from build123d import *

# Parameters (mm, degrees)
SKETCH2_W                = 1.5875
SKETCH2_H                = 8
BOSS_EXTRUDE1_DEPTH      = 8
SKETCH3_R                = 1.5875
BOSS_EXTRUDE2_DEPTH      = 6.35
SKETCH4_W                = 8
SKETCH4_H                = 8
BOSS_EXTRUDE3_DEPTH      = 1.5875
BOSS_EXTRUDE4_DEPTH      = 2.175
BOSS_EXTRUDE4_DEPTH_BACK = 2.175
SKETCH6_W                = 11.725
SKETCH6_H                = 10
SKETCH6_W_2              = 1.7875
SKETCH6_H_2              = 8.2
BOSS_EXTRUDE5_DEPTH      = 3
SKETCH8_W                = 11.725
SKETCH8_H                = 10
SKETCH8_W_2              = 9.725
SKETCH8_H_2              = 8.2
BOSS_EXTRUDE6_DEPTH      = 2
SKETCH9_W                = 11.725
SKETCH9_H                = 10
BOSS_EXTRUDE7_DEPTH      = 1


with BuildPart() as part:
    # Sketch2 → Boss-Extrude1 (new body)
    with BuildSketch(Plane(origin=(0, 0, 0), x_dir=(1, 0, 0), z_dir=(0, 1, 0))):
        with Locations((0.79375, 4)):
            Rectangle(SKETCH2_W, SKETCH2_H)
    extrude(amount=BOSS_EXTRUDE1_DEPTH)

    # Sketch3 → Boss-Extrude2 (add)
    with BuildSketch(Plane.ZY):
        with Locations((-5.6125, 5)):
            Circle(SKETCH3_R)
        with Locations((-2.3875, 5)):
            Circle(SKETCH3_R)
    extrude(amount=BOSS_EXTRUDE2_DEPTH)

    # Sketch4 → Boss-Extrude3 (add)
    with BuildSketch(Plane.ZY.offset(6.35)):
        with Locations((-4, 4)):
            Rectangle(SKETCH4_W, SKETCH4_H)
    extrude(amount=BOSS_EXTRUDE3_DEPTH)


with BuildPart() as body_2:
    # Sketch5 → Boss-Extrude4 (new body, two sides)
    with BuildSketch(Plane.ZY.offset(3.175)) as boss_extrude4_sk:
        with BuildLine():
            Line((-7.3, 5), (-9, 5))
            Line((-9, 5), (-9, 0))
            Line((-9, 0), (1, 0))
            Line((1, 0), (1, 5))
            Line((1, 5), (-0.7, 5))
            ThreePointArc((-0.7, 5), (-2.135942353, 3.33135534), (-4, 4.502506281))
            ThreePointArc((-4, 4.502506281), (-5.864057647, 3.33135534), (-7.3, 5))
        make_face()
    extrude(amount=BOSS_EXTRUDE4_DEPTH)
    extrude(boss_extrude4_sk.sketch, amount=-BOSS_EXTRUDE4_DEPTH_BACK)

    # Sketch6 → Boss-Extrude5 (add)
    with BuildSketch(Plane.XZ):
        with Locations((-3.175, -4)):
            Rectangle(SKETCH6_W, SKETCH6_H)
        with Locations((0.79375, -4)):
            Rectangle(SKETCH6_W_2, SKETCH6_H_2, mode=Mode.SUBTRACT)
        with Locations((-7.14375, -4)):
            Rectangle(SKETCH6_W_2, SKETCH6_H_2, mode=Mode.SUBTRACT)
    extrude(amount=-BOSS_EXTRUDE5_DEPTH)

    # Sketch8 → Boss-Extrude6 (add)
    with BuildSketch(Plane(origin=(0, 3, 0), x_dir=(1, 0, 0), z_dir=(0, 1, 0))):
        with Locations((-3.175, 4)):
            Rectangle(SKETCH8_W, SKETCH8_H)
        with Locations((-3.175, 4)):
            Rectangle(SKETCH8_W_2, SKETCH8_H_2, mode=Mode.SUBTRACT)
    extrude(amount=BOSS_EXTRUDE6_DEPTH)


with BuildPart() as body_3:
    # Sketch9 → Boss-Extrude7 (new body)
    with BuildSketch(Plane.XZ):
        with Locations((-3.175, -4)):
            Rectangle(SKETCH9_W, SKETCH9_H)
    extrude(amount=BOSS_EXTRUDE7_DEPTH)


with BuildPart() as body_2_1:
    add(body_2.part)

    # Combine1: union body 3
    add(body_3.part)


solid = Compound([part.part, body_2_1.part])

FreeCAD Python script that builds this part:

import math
import FreeCAD as App
import Part
import Sketcher
from FreeCAD import Vector
Q = App.Units.Quantity

doc = App.newDocument("Part")
body = doc.addObject("PartDesign::Body", "Body")

# Sketch on XZ plane
sketch1 = doc.addObject("Sketcher::SketchObject", "Sketch")
body.addObject(sketch1)
sketch1.AttachmentSupport = (doc.XZ_Plane, [""])
sketch1.MapMode = "FlatFace"
sketch1.addGeometry([
    Part.LineSegment(Vector(0, -8, 0), Vector(0, 0, 0)),
    Part.LineSegment(Vector(0, 0, 0), Vector(1.6, 0, 0)),
    Part.LineSegment(Vector(1.6, 0, 0), Vector(1.6, -8, 0)),
    Part.LineSegment(Vector(1.6, -8, 0), Vector(0, -8, 0)),
], False)
sketch1.addConstraint([
    Sketcher.Constraint("Coincident", 0, 2, 1, 1),
    Sketcher.Constraint("Coincident", 1, 2, 2, 1),
    Sketcher.Constraint("Coincident", 2, 2, 3, 1),
    Sketcher.Constraint("Coincident", 3, 2, 0, 1),
    Sketcher.Constraint("Vertical", 0),
    Sketcher.Constraint("Horizontal", 1),
    Sketcher.Constraint("Vertical", 2),
    Sketcher.Constraint("Horizontal", 3),
    Sketcher.Constraint("Coincident", 0, 2, -1, 1),
    Sketcher.Constraint("DistanceY", 0, 1, 0, 2, Q("8 mm")),
    Sketcher.Constraint("DistanceX", 1, 1, 1, 2, Q("1.5875 mm")),
])
pad1 = doc.addObject("PartDesign::Pad", "Pad")
body.addObject(pad1)
pad1.Profile = sketch1
pad1.Length = 8
pad1.Reversed = True

# Sketch on YZ plane
sketch2 = doc.addObject("Sketcher::SketchObject", "Sketch001")
body.addObject(sketch2)
sketch2.AttachmentSupport = (doc.YZ_Plane, [""])
sketch2.MapMode = "FlatFace"
sketch2.addGeometry([
    Part.Circle(Vector(5, -5.6, 0), Vector(0, 0, 1), 1.6),
    Part.Circle(Vector(5, -2.4, 0), Vector(0, 0, 1), 1.6),
], False)
sketch2.addConstraint([
    Sketcher.Constraint("Equal", 0, 1),
    Sketcher.Constraint("Vertical", 0, 3, 1, 3),
    Sketcher.Constraint("Diameter", 0, Q("3.175 mm")),
    Sketcher.Constraint("DistanceX", -1, 1, 0, 3, Q("5 mm")),
    Sketcher.Constraint("DistanceY", 0, 3, 1, 3, Q("3.225 mm")),
    Sketcher.Constraint("DistanceY", 0, 3, -1, 1, Q("5.6125 mm")),
])
pad2 = doc.addObject("PartDesign::Pad", "Pad001")
body.addObject(pad2)
pad2.Profile = sketch2
pad2.Length = 6.35
pad2.Reversed = True

# Sketch on YZ plane
sketch3 = doc.addObject("Sketcher::SketchObject", "Sketch002")
body.addObject(sketch3)
sketch3.AttachmentSupport = (doc.YZ_Plane, [""])
sketch3.MapMode = "FlatFace"
sketch3.AttachmentOffset = App.Placement(Vector(0, 0, -6.35), App.Rotation())
sketch3.addGeometry([
    Part.LineSegment(Vector(8, -8, 0), Vector(0, -8, 0)),
    Part.LineSegment(Vector(0, -8, 0), Vector(0, 0, 0)),
    Part.LineSegment(Vector(0, 0, 0), Vector(8, 0, 0)),
    Part.LineSegment(Vector(8, 0, 0), Vector(8, -8, 0)),
], False)
sketch3.addConstraint([
    Sketcher.Constraint("Coincident", 0, 2, 1, 1),
    Sketcher.Constraint("Coincident", 1, 2, 2, 1),
    Sketcher.Constraint("Coincident", 2, 2, 3, 1),
    Sketcher.Constraint("Coincident", 3, 2, 0, 1),
    Sketcher.Constraint("Horizontal", 0),
    Sketcher.Constraint("Vertical", 1),
    Sketcher.Constraint("Horizontal", 2),
    Sketcher.Constraint("Vertical", 3),
    Sketcher.Constraint("Coincident", 1, 2, -1, 1),
    Sketcher.Constraint("Equal", 2, 1),
    Sketcher.Constraint("DistanceX", 0, 2, 0, 1, Q("8 mm")),
])
pad3 = doc.addObject("PartDesign::Pad", "Pad002")
body.addObject(pad3)
pad3.Profile = sketch3
pad3.Length = 1.5875
pad3.Reversed = True
body2 = doc.addObject("PartDesign::Body", "Body001")

# Sketch on YZ plane
sketch4 = doc.addObject("Sketcher::SketchObject", "Sketch003")
body2.addObject(sketch4)
sketch4.AttachmentSupport = (doc.getObject("YZ_Plane001"), [""])
sketch4.MapMode = "FlatFace"
sketch4.AttachmentOffset = App.Placement(Vector(0, 0, -3.175), App.Rotation())
sketch4.addGeometry([
    Part.LineSegment(Vector(5, -7.3, 0), Vector(5, -9, 0)),  # 0
    Part.LineSegment(Vector(5, -9, 0), Vector(0, -9, 0)),  # 1
    Part.LineSegment(Vector(0, -9, 0), Vector(0, 1, 0)),  # 2
    Part.LineSegment(Vector(0, 1, 0), Vector(5, 1, 0)),  # 3
    Part.LineSegment(Vector(5, 1, 0), Vector(5, -0.7, 0)),  # 4
    Part.ArcOfCircle(Part.Circle(Vector(5, -2.4, 0), Vector(0, 0, 1), 1.7), math.radians(90), math.radians(253)),  # 5
    Part.ArcOfCircle(Part.Circle(Vector(5, -5.6, 0), Vector(0, 0, 1), 1.7), math.radians(107), math.radians(270)),  # 6
], False)
sketch4.addConstraint([
    Sketcher.Constraint("Coincident", 0, 2, 1, 1),
    Sketcher.Constraint("Coincident", 1, 2, 2, 1),
    Sketcher.Constraint("Coincident", 2, 2, 3, 1),
    Sketcher.Constraint("Coincident", 3, 2, 4, 1),
    Sketcher.Constraint("Coincident", 4, 2, 5, 1),
    Sketcher.Constraint("Coincident", 5, 2, 6, 1),
    Sketcher.Constraint("Coincident", 6, 2, 0, 1),
    Sketcher.Constraint("Vertical", 0),
    Sketcher.Constraint("Horizontal", 1),
    Sketcher.Constraint("Vertical", 2),
    Sketcher.Constraint("Horizontal", 3),
    Sketcher.Constraint("Vertical", 4),
    Sketcher.Constraint("Equal", 5, 6),
    Sketcher.Constraint("PointOnObject", 1, 2, -2),
    Sketcher.Constraint("Vertical", 5, 3, 6, 3),
    Sketcher.Constraint("Vertical", 6, 3, 0, 2),
    Sketcher.Constraint("Vertical", 0, 2, 3, 2),
    Sketcher.Constraint("Equal", 0, 4),
    Sketcher.Constraint("DistanceX", 1, 2, 1, 1, Q("5 mm")),
    Sketcher.Constraint("DistanceY", 2, 1, 2, 2, Q("10 mm")),
    Sketcher.Constraint("DistanceY", 0, 2, 0, 1, Q("1.7 mm")),
    Sketcher.Constraint("DistanceY", 0, 2, -1, 1, Q("9 mm")),
    Sketcher.Constraint("Radius", 5, Q("1.6875 mm")),
])
pad4 = doc.addObject("PartDesign::Pad", "Pad003")
body2.addObject(pad4)
pad4.Profile = sketch4
pad4.Type = "TwoLengths"
pad4.Length = 2.175
pad4.Length2 = 2.175
pad4.Reversed = True

# Sketch on XZ plane
sketch5 = doc.addObject("Sketcher::SketchObject", "Sketch004")
body2.addObject(sketch5)
sketch5.AttachmentSupport = (doc.getObject("XZ_Plane001"), [""])
sketch5.MapMode = "FlatFace"
sketch5.addGeometry([
    Part.LineSegment(Vector(-9, 1, 0), Vector(-9, -9, 0)),  # 0
    Part.LineSegment(Vector(-9, -9, 0), Vector(2.7, -9, 0)),  # 1
    Part.LineSegment(Vector(2.7, -9, 0), Vector(2.7, 1, 0)),  # 2
    Part.LineSegment(Vector(2.7, 1, 0), Vector(-9, 1, 0)),  # 3
    Part.LineSegment(Vector(-6.2, -8.1, 0), Vector(-8, -8.1, 0)),  # 4
    Part.LineSegment(Vector(-8, -8.1, 0), Vector(-8, 0.1, 0)),  # 5
    Part.LineSegment(Vector(-8, 0.1, 0), Vector(-6.2, 0.1, 0)),  # 6
    Part.LineSegment(Vector(-6.2, 0.1, 0), Vector(-6.2, -8.1, 0)),  # 7
    Part.LineSegment(Vector(1.7, -8.1, 0), Vector(-0.1, -8.1, 0)),  # 8
    Part.LineSegment(Vector(-0.1, -8.1, 0), Vector(-0.1, 0.1, 0)),  # 9
    Part.LineSegment(Vector(-0.1, 0.1, 0), Vector(1.7, 0.1, 0)),  # 10
    Part.LineSegment(Vector(1.7, 0.1, 0), Vector(1.7, -8.1, 0)),  # 11
], False)
sketch5.addConstraint([
    Sketcher.Constraint("Coincident", 0, 2, 1, 1),
    Sketcher.Constraint("Coincident", 1, 2, 2, 1),
    Sketcher.Constraint("Coincident", 2, 2, 3, 1),
    Sketcher.Constraint("Coincident", 3, 2, 0, 1),
    Sketcher.Constraint("Coincident", 4, 2, 5, 1),
    Sketcher.Constraint("Coincident", 5, 2, 6, 1),
    Sketcher.Constraint("Coincident", 6, 2, 7, 1),
    Sketcher.Constraint("Coincident", 7, 2, 4, 1),
    Sketcher.Constraint("Coincident", 8, 2, 9, 1),
    Sketcher.Constraint("Coincident", 9, 2, 10, 1),
    Sketcher.Constraint("Coincident", 10, 2, 11, 1),
    Sketcher.Constraint("Coincident", 11, 2, 8, 1),
    Sketcher.Constraint("Vertical", 0),
    Sketcher.Constraint("Horizontal", 1),
    Sketcher.Constraint("Vertical", 2),
    Sketcher.Constraint("Horizontal", 3),
    Sketcher.Constraint("Horizontal", 4),
    Sketcher.Constraint("Vertical", 5),
    Sketcher.Constraint("Horizontal", 6),
    Sketcher.Constraint("Vertical", 7),
    Sketcher.Constraint("Horizontal", 8),
    Sketcher.Constraint("Vertical", 9),
    Sketcher.Constraint("Horizontal", 10),
    Sketcher.Constraint("Vertical", 11),
    Sketcher.Constraint("Horizontal", 7, 2, 8, 2),
    Sketcher.Constraint("Horizontal", 6, 2, 9, 2),
    Sketcher.Constraint("Equal", 6, 8),
    Sketcher.Constraint("DistanceY", 0, 2, 0, 1, Q("10 mm")),
    Sketcher.Constraint("DistanceY", 5, 1, 5, 2, Q("8.2 mm")),
    Sketcher.Constraint("DistanceY", 0, 2, -1, 1, Q("9 mm")),
    Sketcher.Constraint("DistanceX", 0, 2, 4, 2, Q("1 mm")),
    Sketcher.Constraint("DistanceX", 10, 2, 2, 2, Q("1 mm")),
    Sketcher.Constraint("DistanceY", 4, 2, -1, 1, Q("8.1 mm")),
    Sketcher.Constraint("DistanceX", 8, 2, -1, 1, Q("0.1 mm")),
    Sketcher.Constraint("DistanceX", 1, 1, 1, 2, Q("11.725 mm")),
    Sketcher.Constraint("DistanceX", 6, 2, -1, 1, Q("6.25 mm")),
])
pad5 = doc.addObject("PartDesign::Pad", "Pad004")
body2.addObject(pad5)
pad5.Profile = sketch5
pad5.Length = 3
pad5.Reversed = True

# Sketch on XZ plane
sketch6 = doc.addObject("Sketcher::SketchObject", "Sketch005")
body2.addObject(sketch6)
sketch6.AttachmentSupport = (doc.getObject("XZ_Plane001"), [""])
sketch6.MapMode = "FlatFace"
sketch6.AttachmentOffset = App.Placement(Vector(0, 0, -3), App.Rotation())
sketch6.addGeometry([
    Part.LineSegment(Vector(-9, -9, 0), Vector(-9, 1, 0)),  # 0
    Part.LineSegment(Vector(-9, 1, 0), Vector(3, 1, 0)),  # 1
    Part.LineSegment(Vector(3, 1, 0), Vector(3, -9, 0)),  # 2
    Part.LineSegment(Vector(3, -9, 0), Vector(-9, -9, 0)),  # 3
    Part.LineSegment(Vector(2, 0, 0), Vector(-8, 0, 0)),  # 4
    Part.LineSegment(Vector(-8, 0, 0), Vector(-8, -8, 0)),  # 5
    Part.LineSegment(Vector(-8, -8, 0), Vector(2, -8, 0)),  # 6
    Part.LineSegment(Vector(2, -8, 0), Vector(2, 0, 0)),  # 7
], False)
sketch6.addConstraint([
    Sketcher.Constraint("Coincident", 0, 2, 1, 1),
    Sketcher.Constraint("Coincident", 1, 2, 2, 1),
    Sketcher.Constraint("Coincident", 2, 2, 3, 1),
    Sketcher.Constraint("Coincident", 3, 2, 0, 1),
    Sketcher.Constraint("Coincident", 4, 2, 5, 1),
    Sketcher.Constraint("Coincident", 5, 2, 6, 1),
    Sketcher.Constraint("Coincident", 6, 2, 7, 1),
    Sketcher.Constraint("Coincident", 7, 2, 4, 1),
    Sketcher.Constraint("Vertical", 0),
    Sketcher.Constraint("Horizontal", 1),
    Sketcher.Constraint("Vertical", 2),
    Sketcher.Constraint("Horizontal", 3),
    Sketcher.Constraint("Horizontal", 4),
    Sketcher.Constraint("Vertical", 5),
    Sketcher.Constraint("Horizontal", 6),
    Sketcher.Constraint("Vertical", 7),
    Sketcher.Constraint("DistanceY", 0, 1, 0, 2, Q("10 mm")),
    Sketcher.Constraint("DistanceY", 5, 2, 5, 1, Q("8.2 mm")),
    Sketcher.Constraint("DistanceY", -1, 1, 0, 2, Q("1 mm")),
    Sketcher.Constraint("DistanceX", 0, 2, 4, 2, Q("1 mm")),
    Sketcher.Constraint("DistanceX", 6, 2, 2, 2, Q("1 mm")),
    Sketcher.Constraint("DistanceY", -1, 1, 4, 2, Q("0.1 mm")),
    Sketcher.Constraint("DistanceX", 1, 1, 1, 2, Q("11.725 mm")),
    Sketcher.Constraint("DistanceX", 0, 2, -1, 1, Q("9.0375 mm")),
])
pad6 = doc.addObject("PartDesign::Pad", "Pad005")
body2.addObject(pad6)
pad6.Profile = sketch6
pad6.Length = 2
pad6.Reversed = True
body3 = doc.addObject("PartDesign::Body", "Body002")

# Sketch on XZ plane
sketch7 = doc.addObject("Sketcher::SketchObject", "Sketch006")
body3.addObject(sketch7)
sketch7.AttachmentSupport = (doc.getObject("XZ_Plane002"), [""])
sketch7.MapMode = "FlatFace"
sketch7.addGeometry([
    Part.LineSegment(Vector(-9, 1, 0), Vector(-9, -9, 0)),
    Part.LineSegment(Vector(-9, -9, 0), Vector(3, -9, 0)),
    Part.LineSegment(Vector(3, -9, 0), Vector(3, 1, 0)),
    Part.LineSegment(Vector(3, 1, 0), Vector(-9, 1, 0)),
], False)
sketch7.addConstraint([
    Sketcher.Constraint("Coincident", 0, 2, 1, 1),
    Sketcher.Constraint("Coincident", 1, 2, 2, 1),
    Sketcher.Constraint("Coincident", 2, 2, 3, 1),
    Sketcher.Constraint("Coincident", 3, 2, 0, 1),
    Sketcher.Constraint("Vertical", 0),
    Sketcher.Constraint("Horizontal", 1),
    Sketcher.Constraint("Vertical", 2),
    Sketcher.Constraint("Horizontal", 3),
    Sketcher.Constraint("DistanceY", 0, 2, 0, 1, Q("10 mm")),
    Sketcher.Constraint("DistanceY", 0, 2, -1, 1, Q("9 mm")),
    Sketcher.Constraint("DistanceX", 1, 1, 1, 2, Q("11.725 mm")),
    Sketcher.Constraint("DistanceX", 0, 2, -1, 1, Q("9.0375 mm")),
])
pad7 = doc.addObject("PartDesign::Pad", "Pad006")
body3.addObject(pad7)
pad7.Profile = sketch7
pad7.Length = 1
doc.recompute()

boolean = doc.addObject("PartDesign::Boolean", "Boolean")
body2.addObject(boolean)
boolean.Type = "Fuse"
boolean.addObjects([body3])

doc.recompute()
